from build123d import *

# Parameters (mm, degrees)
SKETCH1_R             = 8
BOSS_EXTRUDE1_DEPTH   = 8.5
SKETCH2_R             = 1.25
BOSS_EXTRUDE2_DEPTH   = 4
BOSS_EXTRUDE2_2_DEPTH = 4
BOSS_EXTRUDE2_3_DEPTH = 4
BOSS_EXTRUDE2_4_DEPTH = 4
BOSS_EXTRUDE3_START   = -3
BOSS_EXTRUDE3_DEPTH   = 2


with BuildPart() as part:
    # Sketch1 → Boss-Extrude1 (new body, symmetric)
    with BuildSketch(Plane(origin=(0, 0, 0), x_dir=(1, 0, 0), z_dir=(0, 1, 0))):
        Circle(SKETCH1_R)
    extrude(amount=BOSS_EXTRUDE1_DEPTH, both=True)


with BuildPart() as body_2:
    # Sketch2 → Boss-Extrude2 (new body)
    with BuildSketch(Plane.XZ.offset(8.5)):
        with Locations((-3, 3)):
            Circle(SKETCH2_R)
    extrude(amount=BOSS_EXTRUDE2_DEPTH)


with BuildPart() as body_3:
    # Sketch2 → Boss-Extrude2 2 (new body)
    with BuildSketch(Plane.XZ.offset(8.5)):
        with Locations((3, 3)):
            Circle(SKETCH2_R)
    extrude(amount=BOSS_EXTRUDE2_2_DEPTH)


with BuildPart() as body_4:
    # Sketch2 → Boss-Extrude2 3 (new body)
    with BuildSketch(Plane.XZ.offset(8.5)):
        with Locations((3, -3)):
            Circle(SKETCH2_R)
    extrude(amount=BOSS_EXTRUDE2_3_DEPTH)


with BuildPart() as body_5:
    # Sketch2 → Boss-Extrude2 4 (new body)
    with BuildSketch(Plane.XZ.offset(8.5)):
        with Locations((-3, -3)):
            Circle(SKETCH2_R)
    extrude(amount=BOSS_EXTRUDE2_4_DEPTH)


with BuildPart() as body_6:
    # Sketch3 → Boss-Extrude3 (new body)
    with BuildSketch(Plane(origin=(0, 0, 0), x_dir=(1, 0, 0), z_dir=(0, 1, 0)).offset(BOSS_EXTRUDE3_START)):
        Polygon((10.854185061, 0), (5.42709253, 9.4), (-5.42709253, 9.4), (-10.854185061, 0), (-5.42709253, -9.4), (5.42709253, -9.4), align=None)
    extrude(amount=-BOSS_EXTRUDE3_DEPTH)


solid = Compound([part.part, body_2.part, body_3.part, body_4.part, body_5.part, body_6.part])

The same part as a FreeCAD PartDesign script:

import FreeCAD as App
import Part
import Sketcher

V = App.Vector
Q = App.Units.Quantity


def add_polygon(sketch, points):
    """Adds a closed chain of lines whose ends are joined by coincident constraints."""
    first, n = sketch.GeometryCount, len(points)
    for a, b in zip(points, points[1:] + points[:1]):
        sketch.addGeometry(Part.LineSegment(App.Vector(*a, 0), App.Vector(*b, 0)), False)
    for i in range(n):
        sketch.addConstraint(Sketcher.Constraint("Coincident", first + i, 2, first + (i + 1) % n, 1))

doc = App.newDocument("Part")
body = doc.addObject("PartDesign::Body", "Body")

sketch1 = doc.addObject("Sketcher::SketchObject", "Sketch")
body.addObject(sketch1)
sketch1.AttachmentSupport = (doc.XZ_Plane, [""])
sketch1.MapMode = "FlatFace"
sketch1.addGeometry(Part.Circle(V(0, 0, 0), V(0, 0, 1), 8), False)
sketch1.addConstraint([
    Sketcher.Constraint("Coincident", 0, 3, -1, 1),
    Sketcher.Constraint("Diameter", 0, 16.0),
])
pad1 = doc.addObject("PartDesign::Pad", "Pad")
body.addObject(pad1)
pad1.Profile = sketch1
pad1.Length = 17
pad1.Midplane = True
body2 = doc.addObject("PartDesign::Body", "Body001")

sketch2 = doc.addObject("Sketcher::SketchObject", "Sketch001")
body2.addObject(sketch2)
sketch2.AttachmentSupport = (doc.getObject("XZ_Plane001"), [""])
sketch2.MapMode = "FlatFace"
sketch2.AttachmentOffset = App.Placement(V(0, 0, 8.5), App.Rotation())
sketch2.addGeometry(Part.Circle(V(-3, 3, 0), V(0, 0, 1), 1.2), False)
sketch2.addConstraint([
    Sketcher.Constraint("Diameter", 0, 2.5),
    Sketcher.Constraint("DistanceX", 0, 3, -1, 1, 3.0),
    Sketcher.Constraint("DistanceY", -1, 1, 0, 3, 3.0),
])
pad2 = doc.addObject("PartDesign::Pad", "Pad001")
body2.addObject(pad2)
pad2.Profile = sketch2
pad2.Length = 4
body3 = doc.addObject("PartDesign::Body", "Body002")

sketch3 = doc.addObject("Sketcher::SketchObject", "Sketch002")
body3.addObject(sketch3)
sketch3.AttachmentSupport = (doc.getObject("XZ_Plane002"), [""])
sketch3.MapMode = "FlatFace"
sketch3.AttachmentOffset = App.Placement(V(0, 0, 8.5), App.Rotation())
sketch3.addGeometry(Part.Circle(V(3, 3, 0), V(0, 0, 1), 1.2), False)
sketch3.addConstraint([
    Sketcher.Constraint("Diameter", 0, 2.5),
    Sketcher.Constraint("DistanceX", -1, 1, 0, 3, 3.0),
    Sketcher.Constraint("DistanceY", -1, 1, 0, 3, 3.0),
])
pad3 = doc.addObject("PartDesign::Pad", "Pad002")
body3.addObject(pad3)
pad3.Profile = sketch3
pad3.Length = 4
body4 = doc.addObject("PartDesign::Body", "Body003")

sketch4 = doc.addObject("Sketcher::SketchObject", "Sketch003")
body4.addObject(sketch4)
sketch4.AttachmentSupport = (doc.getObject("XZ_Plane003"), [""])
sketch4.MapMode = "FlatFace"
sketch4.AttachmentOffset = App.Placement(V(0, 0, 8.5), App.Rotation())
sketch4.addGeometry(Part.Circle(V(3, -3, 0), V(0, 0, 1), 1.2), False)
sketch4.addConstraint([
    Sketcher.Constraint("Diameter", 0, 2.5),
    Sketcher.Constraint("DistanceX", -1, 1, 0, 3, 3.0),
    Sketcher.Constraint("DistanceY", 0, 3, -1, 1, 3.0),
])
pad4 = doc.addObject("PartDesign::Pad", "Pad003")
body4.addObject(pad4)
pad4.Profile = sketch4
pad4.Length = 4
body5 = doc.addObject("PartDesign::Body", "Body004")

sketch5 = doc.addObject("Sketcher::SketchObject", "Sketch004")
body5.addObject(sketch5)
sketch5.AttachmentSupport = (doc.getObject("XZ_Plane004"), [""])
sketch5.MapMode = "FlatFace"
sketch5.AttachmentOffset = App.Placement(V(0, 0, 8.5), App.Rotation())
sketch5.addGeometry(Part.Circle(V(-3, -3, 0), V(0, 0, 1), 1.2), False)
sketch5.addConstraint([
    Sketcher.Constraint("Diameter", 0, 2.5),
    Sketcher.Constraint("DistanceX", 0, 3, -1, 1, 3.0),
    Sketcher.Constraint("DistanceY", 0, 3, -1, 1, 3.0),
])
pad5 = doc.addObject("PartDesign::Pad", "Pad004")
body5.addObject(pad5)
pad5.Profile = sketch5
pad5.Length = 4
body6 = doc.addObject("PartDesign::Body", "Body005")

sketch6 = doc.addObject("Sketcher::SketchObject", "Sketch005")
body6.addObject(sketch6)
sketch6.AttachmentSupport = (doc.getObject("XZ_Plane005"), [""])
sketch6.MapMode = "FlatFace"
sketch6.AttachmentOffset = App.Placement(V(0, 0, 3), App.Rotation())
add_polygon(sketch6, [(11, 0), (5, -9), (-5, -9), (-11, 0), (-5, 9), (5, 9)])
sketch6.addConstraint([
    Sketcher.Constraint("Horizontal", 1),
    Sketcher.Constraint("Horizontal", 4),
    Sketcher.Constraint("Symmetric", 0, 2, 3, 2, -1, 1),
    Sketcher.Constraint("Symmetric", 2, 2, 5, 2, -1, 1),
    Sketcher.Constraint("PointOnObject", 2, 2, -1),
    Sketcher.Constraint("Parallel", 2, 5),
    Sketcher.Constraint("Vertical", 1, 2, 3, 2),
    Sketcher.Constraint("Angle", 0, Q("-120 deg")),
    Sketcher.Constraint("DistanceY", 0, 2, -1, 1, 9.4),
    Sketcher.Constraint("DistanceX", 1, 2, 1, 1, 10.854185),
])
pad6 = doc.addObject("PartDesign::Pad", "Pad005")
body6.addObject(pad6)
pad6.Profile = sketch6
pad6.Length = 2

doc.recompute()
